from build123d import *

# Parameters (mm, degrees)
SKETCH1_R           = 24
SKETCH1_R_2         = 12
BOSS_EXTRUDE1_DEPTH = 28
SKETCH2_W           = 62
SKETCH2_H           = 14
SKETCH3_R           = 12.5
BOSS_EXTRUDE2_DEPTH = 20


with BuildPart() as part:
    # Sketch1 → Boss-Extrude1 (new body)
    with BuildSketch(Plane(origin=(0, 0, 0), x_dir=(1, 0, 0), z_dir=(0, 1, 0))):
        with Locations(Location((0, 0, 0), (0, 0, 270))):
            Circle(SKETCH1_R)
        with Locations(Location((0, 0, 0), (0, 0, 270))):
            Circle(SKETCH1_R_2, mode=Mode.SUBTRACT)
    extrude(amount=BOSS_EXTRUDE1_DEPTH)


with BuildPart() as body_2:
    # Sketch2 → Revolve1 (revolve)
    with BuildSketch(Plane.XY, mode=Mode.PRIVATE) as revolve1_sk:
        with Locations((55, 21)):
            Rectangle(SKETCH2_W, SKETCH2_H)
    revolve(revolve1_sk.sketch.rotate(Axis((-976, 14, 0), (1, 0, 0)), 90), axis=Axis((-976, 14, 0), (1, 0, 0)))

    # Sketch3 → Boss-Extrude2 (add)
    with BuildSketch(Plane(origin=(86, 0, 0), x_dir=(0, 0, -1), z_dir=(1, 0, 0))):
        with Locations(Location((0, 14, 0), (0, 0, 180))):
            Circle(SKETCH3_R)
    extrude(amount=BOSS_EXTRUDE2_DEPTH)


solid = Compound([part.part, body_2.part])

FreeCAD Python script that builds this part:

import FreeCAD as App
import Part
import Sketcher
from FreeCAD import Vector
Q = App.Units.Quantity

doc = App.newDocument("Part")
body = doc.addObject("PartDesign::Body", "Body")

# Sketch on XZ plane
sketch1 = doc.addObject("Sketcher::SketchObject", "Sketch")
body.addObject(sketch1)
sketch1.AttachmentSupport = (doc.XZ_Plane, [""])
sketch1.MapMode = "FlatFace"
sketch1.addGeometry([
    Part.Circle(Vector(0, 0, 0), Vector(0, 0, 1), 24),
    Part.Circle(Vector(0, 0, 0), Vector(0, 0, 1), 12),
], False)
sketch1.addConstraint([
    Sketcher.Constraint("Coincident", 0, 3, -1, 1),
    Sketcher.Constraint("Coincident", 1, 3, -1, 1),
    Sketcher.Constraint("Diameter", 0, Q("48 mm")),
    Sketcher.Constraint("Diameter", 1, Q("24 mm")),
])
pad1 = doc.addObject("PartDesign::Pad", "Pad")
body.addObject(pad1)
pad1.Profile = sketch1
pad1.Length = 28
pad1.Reversed = True
body2 = doc.addObject("PartDesign::Body", "Body001")

# Sketch on XY plane
sketch2 = doc.addObject("Sketcher::SketchObject", "Sketch001")
body2.addObject(sketch2)
sketch2.AttachmentSupport = (doc.getObject("XY_Plane001"), [""])
sketch2.MapMode = "FlatFace"
sketch2.addGeometry([
    Part.LineSegment(Vector(24, 28, 0), Vector(24, 14, 0)),
    Part.LineSegment(Vector(24, 14, 0), Vector(86, 14, 0)),
    Part.LineSegment(Vector(86, 14, 0), Vector(86, 28, 0)),
    Part.LineSegment(Vector(86, 28, 0), Vector(24, 28, 0)),
], False)
sketch2.addGeometry(Part.LineSegment(Vector(24, 14, 0), Vector(86, 14, 0)), True)  # axis
sketch2.addConstraint([
    Sketcher.Constraint("Coincident", 0, 2, 1, 1),
    Sketcher.Constraint("Coincident", 1, 2, 2, 1),
    Sketcher.Constraint("Coincident", 2, 2, 3, 1),
    Sketcher.Constraint("Coincident", 3, 2, 0, 1),
    Sketcher.Constraint("Vertical", 0),
    Sketcher.Constraint("Horizontal", 1),
    Sketcher.Constraint("Vertical", 2),
    Sketcher.Constraint("Horizontal", 3),
    Sketcher.Constraint("Horizontal", 4),
    Sketcher.Constraint("Coincident", 4, 1, 0, 2),
    Sketcher.Constraint("Vertical", 2, 2, 4, 2),
    Sketcher.Constraint("DistanceX", 1, 1, 1, 2, Q("62 mm")),
    Sketcher.Constraint("DistanceY", 0, 2, 0, 1, Q("14 mm")),
    Sketcher.Constraint("DistanceX", -1, 1, 0, 2, Q("24 mm")),
    Sketcher.Constraint("DistanceY", -1, 1, 0, 2, Q("14 mm")),
])
revolution = doc.addObject("PartDesign::Revolution", "Revolution")
body2.addObject(revolution)
revolution.Profile = sketch2
revolution.ReferenceAxis = (sketch2, ["Axis0"])
revolution.Angle = 360

# Sketch on YZ plane
sketch3 = doc.addObject("Sketcher::SketchObject", "Sketch002")
body2.addObject(sketch3)
sketch3.AttachmentSupport = (doc.getObject("YZ_Plane001"), [""])
sketch3.MapMode = "FlatFace"
sketch3.AttachmentOffset = App.Placement(Vector(0, 0, 86), App.Rotation())
sketch3.addGeometry(Part.Circle(Vector(14, 0, 0), Vector(0, 0, 1), 12), False)
sketch3.addConstraint([
    Sketcher.Constraint("PointOnObject", 0, 3, -1),
    Sketcher.Constraint("Diameter", 0, Q("25 mm")),
    Sketcher.Constraint("DistanceX", -1, 1, 0, 3, Q("14 mm")),
])
pad2 = doc.addObject("PartDesign::Pad", "Pad001")
body2.addObject(pad2)
pad2.Profile = sketch3
pad2.Length = 20

doc.recompute()
